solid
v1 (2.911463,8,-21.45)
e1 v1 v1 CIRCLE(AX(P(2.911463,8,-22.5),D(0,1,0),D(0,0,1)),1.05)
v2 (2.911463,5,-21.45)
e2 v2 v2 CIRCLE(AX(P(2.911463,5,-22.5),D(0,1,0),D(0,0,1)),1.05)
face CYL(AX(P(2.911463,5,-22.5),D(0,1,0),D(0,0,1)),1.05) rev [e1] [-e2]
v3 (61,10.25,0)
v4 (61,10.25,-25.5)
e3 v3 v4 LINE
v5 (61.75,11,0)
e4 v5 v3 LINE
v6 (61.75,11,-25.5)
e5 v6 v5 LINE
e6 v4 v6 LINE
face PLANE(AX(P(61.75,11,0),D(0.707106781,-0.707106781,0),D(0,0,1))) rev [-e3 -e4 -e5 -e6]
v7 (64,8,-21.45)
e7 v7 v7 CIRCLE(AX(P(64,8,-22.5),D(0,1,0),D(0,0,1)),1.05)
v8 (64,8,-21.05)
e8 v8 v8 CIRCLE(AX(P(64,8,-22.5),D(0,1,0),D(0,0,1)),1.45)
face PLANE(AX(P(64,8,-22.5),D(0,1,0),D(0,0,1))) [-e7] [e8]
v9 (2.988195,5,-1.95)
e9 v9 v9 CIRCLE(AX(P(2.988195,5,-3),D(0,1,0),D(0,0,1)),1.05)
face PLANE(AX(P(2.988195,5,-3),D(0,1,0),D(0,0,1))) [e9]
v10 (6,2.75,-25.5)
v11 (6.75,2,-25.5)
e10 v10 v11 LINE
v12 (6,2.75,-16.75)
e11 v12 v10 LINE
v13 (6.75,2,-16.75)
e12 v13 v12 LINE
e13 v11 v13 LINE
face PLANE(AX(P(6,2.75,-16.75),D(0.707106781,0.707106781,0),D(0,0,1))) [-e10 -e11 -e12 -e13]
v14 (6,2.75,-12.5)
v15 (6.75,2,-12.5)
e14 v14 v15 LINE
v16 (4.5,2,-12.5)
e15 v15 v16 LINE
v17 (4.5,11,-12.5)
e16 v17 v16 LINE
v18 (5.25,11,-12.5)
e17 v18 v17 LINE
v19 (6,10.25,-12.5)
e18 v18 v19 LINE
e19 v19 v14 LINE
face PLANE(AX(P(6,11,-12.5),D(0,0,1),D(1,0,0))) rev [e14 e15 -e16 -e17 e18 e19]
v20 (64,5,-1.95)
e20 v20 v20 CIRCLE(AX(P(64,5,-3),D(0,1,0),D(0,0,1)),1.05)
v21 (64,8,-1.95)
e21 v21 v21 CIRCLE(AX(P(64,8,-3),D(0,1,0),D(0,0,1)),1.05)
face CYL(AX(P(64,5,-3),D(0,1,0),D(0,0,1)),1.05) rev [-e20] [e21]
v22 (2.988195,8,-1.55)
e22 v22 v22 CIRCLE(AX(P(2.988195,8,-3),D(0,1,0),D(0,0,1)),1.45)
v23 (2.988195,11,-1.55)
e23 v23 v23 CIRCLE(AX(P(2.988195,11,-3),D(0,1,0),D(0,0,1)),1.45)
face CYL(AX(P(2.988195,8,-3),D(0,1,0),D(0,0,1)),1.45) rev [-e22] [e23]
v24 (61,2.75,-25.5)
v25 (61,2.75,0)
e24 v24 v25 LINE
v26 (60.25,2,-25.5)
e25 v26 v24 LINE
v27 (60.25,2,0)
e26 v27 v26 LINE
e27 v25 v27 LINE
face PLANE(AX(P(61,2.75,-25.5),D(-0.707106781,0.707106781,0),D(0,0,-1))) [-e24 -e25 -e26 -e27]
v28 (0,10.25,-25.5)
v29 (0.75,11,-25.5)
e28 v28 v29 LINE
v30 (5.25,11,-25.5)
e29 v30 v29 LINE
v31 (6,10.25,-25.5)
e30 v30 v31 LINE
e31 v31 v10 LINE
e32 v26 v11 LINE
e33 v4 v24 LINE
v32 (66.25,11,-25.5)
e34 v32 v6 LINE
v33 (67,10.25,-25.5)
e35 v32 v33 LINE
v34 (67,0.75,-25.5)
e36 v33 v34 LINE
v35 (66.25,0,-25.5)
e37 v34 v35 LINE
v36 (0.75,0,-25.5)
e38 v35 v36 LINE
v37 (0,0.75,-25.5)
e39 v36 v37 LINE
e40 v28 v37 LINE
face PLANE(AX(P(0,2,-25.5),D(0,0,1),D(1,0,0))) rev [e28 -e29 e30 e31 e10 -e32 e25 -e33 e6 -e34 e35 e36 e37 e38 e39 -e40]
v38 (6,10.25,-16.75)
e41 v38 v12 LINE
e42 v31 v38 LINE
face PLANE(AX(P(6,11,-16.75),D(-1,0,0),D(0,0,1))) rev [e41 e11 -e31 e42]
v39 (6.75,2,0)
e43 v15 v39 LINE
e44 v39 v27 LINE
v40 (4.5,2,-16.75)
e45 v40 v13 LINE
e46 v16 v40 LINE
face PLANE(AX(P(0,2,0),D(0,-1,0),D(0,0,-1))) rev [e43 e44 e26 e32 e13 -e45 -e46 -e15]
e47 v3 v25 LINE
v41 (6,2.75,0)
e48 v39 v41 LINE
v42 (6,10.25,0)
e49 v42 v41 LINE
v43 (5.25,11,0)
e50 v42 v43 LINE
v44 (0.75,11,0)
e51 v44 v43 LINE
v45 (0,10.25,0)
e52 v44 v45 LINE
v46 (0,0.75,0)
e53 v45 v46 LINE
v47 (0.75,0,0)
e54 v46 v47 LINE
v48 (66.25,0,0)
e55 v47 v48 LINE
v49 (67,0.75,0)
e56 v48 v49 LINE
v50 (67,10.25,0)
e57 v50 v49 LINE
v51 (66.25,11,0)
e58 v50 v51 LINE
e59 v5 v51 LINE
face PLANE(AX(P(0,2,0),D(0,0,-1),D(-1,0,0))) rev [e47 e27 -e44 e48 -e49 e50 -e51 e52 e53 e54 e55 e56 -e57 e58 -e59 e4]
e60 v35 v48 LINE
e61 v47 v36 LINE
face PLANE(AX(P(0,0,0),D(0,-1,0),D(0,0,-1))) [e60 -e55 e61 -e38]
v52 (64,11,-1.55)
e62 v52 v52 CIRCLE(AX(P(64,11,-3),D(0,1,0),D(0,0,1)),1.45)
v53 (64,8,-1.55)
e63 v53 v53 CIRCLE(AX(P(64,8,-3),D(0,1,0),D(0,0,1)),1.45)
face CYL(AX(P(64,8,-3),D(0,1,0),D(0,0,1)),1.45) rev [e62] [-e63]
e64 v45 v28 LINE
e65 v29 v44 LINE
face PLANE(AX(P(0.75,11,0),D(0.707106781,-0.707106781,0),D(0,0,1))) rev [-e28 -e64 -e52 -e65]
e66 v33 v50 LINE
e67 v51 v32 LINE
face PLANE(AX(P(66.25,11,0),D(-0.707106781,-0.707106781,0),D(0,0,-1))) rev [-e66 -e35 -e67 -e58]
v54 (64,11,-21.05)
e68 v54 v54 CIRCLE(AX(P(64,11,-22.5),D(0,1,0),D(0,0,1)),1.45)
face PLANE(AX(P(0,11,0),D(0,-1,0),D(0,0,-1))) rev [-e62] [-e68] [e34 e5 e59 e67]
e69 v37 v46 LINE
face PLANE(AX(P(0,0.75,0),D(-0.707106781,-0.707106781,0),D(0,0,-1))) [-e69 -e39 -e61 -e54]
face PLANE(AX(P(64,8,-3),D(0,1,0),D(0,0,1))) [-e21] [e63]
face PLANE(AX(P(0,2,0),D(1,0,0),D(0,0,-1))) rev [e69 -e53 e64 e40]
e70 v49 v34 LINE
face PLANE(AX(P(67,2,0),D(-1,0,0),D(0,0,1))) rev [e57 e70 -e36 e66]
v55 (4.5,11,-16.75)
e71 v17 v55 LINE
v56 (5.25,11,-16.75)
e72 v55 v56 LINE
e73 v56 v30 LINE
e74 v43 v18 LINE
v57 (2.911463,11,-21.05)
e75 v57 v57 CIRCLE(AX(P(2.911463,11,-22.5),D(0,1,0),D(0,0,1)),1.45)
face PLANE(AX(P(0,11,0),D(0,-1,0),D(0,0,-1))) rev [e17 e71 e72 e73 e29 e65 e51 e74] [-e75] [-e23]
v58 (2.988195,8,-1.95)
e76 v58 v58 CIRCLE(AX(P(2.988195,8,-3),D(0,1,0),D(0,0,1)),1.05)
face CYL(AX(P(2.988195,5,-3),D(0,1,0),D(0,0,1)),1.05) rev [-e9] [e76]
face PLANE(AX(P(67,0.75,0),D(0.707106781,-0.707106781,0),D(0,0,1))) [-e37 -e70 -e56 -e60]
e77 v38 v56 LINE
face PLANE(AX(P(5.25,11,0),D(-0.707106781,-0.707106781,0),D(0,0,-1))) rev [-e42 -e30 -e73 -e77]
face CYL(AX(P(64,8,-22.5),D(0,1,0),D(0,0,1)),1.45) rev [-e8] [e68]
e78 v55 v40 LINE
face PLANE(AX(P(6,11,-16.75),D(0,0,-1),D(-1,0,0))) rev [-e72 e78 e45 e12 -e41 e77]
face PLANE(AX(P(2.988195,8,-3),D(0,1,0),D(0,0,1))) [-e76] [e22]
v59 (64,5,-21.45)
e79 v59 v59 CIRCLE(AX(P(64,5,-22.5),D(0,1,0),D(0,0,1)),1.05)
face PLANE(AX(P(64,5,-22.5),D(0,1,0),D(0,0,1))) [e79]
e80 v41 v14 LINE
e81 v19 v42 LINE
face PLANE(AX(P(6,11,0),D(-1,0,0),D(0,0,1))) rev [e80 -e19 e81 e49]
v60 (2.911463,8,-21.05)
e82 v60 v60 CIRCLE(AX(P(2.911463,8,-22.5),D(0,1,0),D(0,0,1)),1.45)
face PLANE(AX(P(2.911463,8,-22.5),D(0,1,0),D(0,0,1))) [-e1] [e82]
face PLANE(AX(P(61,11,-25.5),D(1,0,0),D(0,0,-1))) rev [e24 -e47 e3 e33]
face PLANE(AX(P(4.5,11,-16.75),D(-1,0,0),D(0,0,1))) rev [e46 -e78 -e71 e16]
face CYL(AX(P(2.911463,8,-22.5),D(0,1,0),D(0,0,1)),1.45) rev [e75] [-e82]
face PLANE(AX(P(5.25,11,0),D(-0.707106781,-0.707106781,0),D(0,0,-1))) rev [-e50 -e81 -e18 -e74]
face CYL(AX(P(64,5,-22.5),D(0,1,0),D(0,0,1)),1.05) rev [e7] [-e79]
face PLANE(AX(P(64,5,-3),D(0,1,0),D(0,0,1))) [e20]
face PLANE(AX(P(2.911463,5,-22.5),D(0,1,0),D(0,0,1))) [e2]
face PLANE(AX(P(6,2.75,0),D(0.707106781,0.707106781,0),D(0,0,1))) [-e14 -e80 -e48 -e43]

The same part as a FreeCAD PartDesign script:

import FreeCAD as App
import Part
import Sketcher
from FreeCAD import Vector
Q = App.Units.Quantity


def edges_at(feature, points):
    """Names of the edges that pass closest to the given points."""
    edges = feature.Shape.Edges
    near = lambda p: min(range(len(edges)), key=lambda i: edges[i].distToShape(Part.Vertex(*p))[0])
    return sorted({f"Edge{near(p) + 1}" for p in points})


def add_polygon(sketch, points):
    """Adds a closed chain of lines whose ends are joined by coincident constraints."""
    first, n = sketch.GeometryCount, len(points)
    for a, b in zip(points, points[1:] + points[:1]):
        sketch.addGeometry(Part.LineSegment(App.Vector(*a, 0), App.Vector(*b, 0)), False)
    for i in range(n):
        sketch.addConstraint(Sketcher.Constraint("Coincident", first + i, 2, first + (i + 1) % n, 1))

doc = App.newDocument("Part")
body = doc.addObject("PartDesign::Body", "Body")

# Sketch on XZ plane
sketch1 = doc.addObject("Sketcher::SketchObject", "Sketch")
body.addObject(sketch1)
sketch1.AttachmentSupport = (doc.XZ_Plane, [""])
sketch1.MapMode = "FlatFace"
add_polygon(sketch1, [(0, -25.5), (0, 0), (67, 0), (67, -25.5)])  # lines 0-3
sketch1.addConstraint([
    Sketcher.Constraint("Vertical", 0),
    Sketcher.Constraint("Horizontal", 1),
    Sketcher.Constraint("Vertical", 2),
    Sketcher.Constraint("Horizontal", 3),
    Sketcher.Constraint("Coincident", 0, 2, -1, 1),
    Sketcher.Constraint("DistanceX", 1, 1, 1, 2, Q("67 mm")),
    Sketcher.Constraint("DistanceY", 0, 1, 0, 2, Q("25.5 mm")),
])
pad1 = doc.addObject("PartDesign::Pad", "Pad")
body.addObject(pad1)
pad1.Profile = sketch1
pad1.Length = 2
pad1.Reversed = True

# Sketch on XZ plane
sketch2 = doc.addObject("Sketcher::SketchObject", "Sketch001")
body.addObject(sketch2)
sketch2.AttachmentSupport = (doc.XZ_Plane, [""])
sketch2.MapMode = "FlatFace"
sketch2.AttachmentOffset = App.Placement(Vector(0, 0, -2), App.Rotation())
add_polygon(sketch2, [(61, -25.5), (61, 0), (67, 0), (67, -25.5)])  # lines 0-3
sketch2.addConstraint([
    Sketcher.Constraint("Vertical", 0),
    Sketcher.Constraint("Horizontal", 1),
    Sketcher.Constraint("Vertical", 2),
    Sketcher.Constraint("Horizontal", 3),
    Sketcher.Constraint("PointOnObject", 0, 2, -1),
    Sketcher.Constraint("DistanceX", 1, 1, 1, 2, Q("6 mm")),
    Sketcher.Constraint("DistanceY", 0, 1, 0, 2, Q("25.5 mm")),
    Sketcher.Constraint("DistanceX", -1, 1, 0, 2, Q("61 mm")),
])
pad2 = doc.addObject("PartDesign::Pad", "Pad001")
body.addObject(pad2)
pad2.Profile = sketch2
pad2.Length = 9
pad2.Reversed = True

# Sketch on XZ plane
sketch3 = doc.addObject("Sketcher::SketchObject", "Sketch002")
body.addObject(sketch3)
sketch3.AttachmentSupport = (doc.XZ_Plane, [""])
sketch3.MapMode = "FlatFace"
sketch3.AttachmentOffset = App.Placement(Vector(0, 0, -2), App.Rotation())
add_polygon(sketch3, [(0, 0), (6, 0), (6, -12.5), (4.5, -12.5), (4.5, -16.75), (6, -16.75), (6, -25.5), (0, -25.5)])  # lines 0-7
sketch3.addConstraint([
    Sketcher.Constraint("Horizontal", 0),
    Sketcher.Constraint("Vertical", 1),
    Sketcher.Constraint("Horizontal", 2),
    Sketcher.Constraint("Vertical", 3),
    Sketcher.Constraint("Horizontal", 4),
    Sketcher.Constraint("Vertical", 5),
    Sketcher.Constraint("Horizontal", 6),
    Sketcher.Constraint("Vertical", 7),
    Sketcher.Constraint("Coincident", 7, 2, -1, 1),
    Sketcher.Constraint("Vertical", 1, 2, 4, 2),
    Sketcher.Constraint("DistanceX", 0, 1, 0, 2, Q("6 mm")),
    Sketcher.Constraint("DistanceX", 2, 2, 2, 1, Q("1.5 mm")),
    Sketcher.Constraint("DistanceY", 1, 2, 1, 1, Q("12.5 mm")),
    Sketcher.Constraint("DistanceY", 7, 1, 7, 2, Q("25.5 mm")),
    Sketcher.Constraint("DistanceY", 3, 2, 3, 1, Q("4.25 mm")),
])
pad3 = doc.addObject("PartDesign::Pad", "Pad002")
body.addObject(pad3)
pad3.Profile = sketch3
pad3.Length = 9
pad3.Reversed = True

# Sketch on XZ plane
sketch4 = doc.addObject("Sketcher::SketchObject", "Sketch003")
body.addObject(sketch4)
sketch4.AttachmentSupport = (doc.XZ_Plane, [""])
sketch4.MapMode = "FlatFace"
sketch4.AttachmentOffset = App.Placement(Vector(0, 0, -11), App.Rotation())
sketch4.addGeometry([
    Part.Circle(Vector(2.911463, -22.5, 0), Vector(0, 0, 1), 1.45),
    Part.Circle(Vector(2.988195, -3, 0), Vector(0, 0, 1), 1.45),
    Part.Circle(Vector(64, -22.5, 0), Vector(0, 0, 1), 1.45),
    Part.Circle(Vector(64, -3, 0), Vector(0, 0, 1), 1.45),
], False)
sketch4.addConstraint([
    Sketcher.Constraint("Equal", 0, 1),
    Sketcher.Constraint("Equal", 1, 2),
    Sketcher.Constraint("Equal", 2, 3),
    Sketcher.Constraint("Horizontal", 0, 3, 2, 3),
    Sketcher.Constraint("Horizontal", 1, 3, 3, 3),
    Sketcher.Constraint("Vertical", 2, 3, 3, 3),
    Sketcher.Constraint("Diameter", 0, Q("2.9 mm")),
    Sketcher.Constraint("DistanceY", 1, 3, -1, 1, Q("3 mm")),
    Sketcher.Constraint("DistanceX", -1, 1, 2, 3, Q("64 mm")),
    Sketcher.Constraint("DistanceY", 0, 3, -1, 1, Q("22.5 mm")),
    Sketcher.Constraint("DistanceX", 0, 3, 1, 3, Q("0.076732 mm")),
    Sketcher.Constraint("DistanceX", -1, 1, 0, 3, Q("2.911463 mm")),
])
pocket1 = doc.addObject("PartDesign::Pocket", "Pocket")
body.addObject(pocket1)
pocket1.Profile = sketch4
pocket1.Length = 3
pocket1.Reversed = True
doc.recompute()

chamfer = doc.addObject("PartDesign::Chamfer", "Chamfer")
body.addObject(chamfer)
chamfer.Base = (pocket1, edges_at(pocket1, [
    (61, 2, -12.75),
    (67, 11, -12.75),
    (61, 11, -12.75),
    (6, 2, -6.25),
    (6, 2, -21.125),
    (0, 11, -12.75),
    (6, 11, -6.25),
    (6, 11, -21.125),
    (67, 0, -12.75),
    (0, 0, -12.75),
]))
chamfer.Size = 0.75

# Sketch on XZ plane
sketch5 = doc.addObject("Sketcher::SketchObject", "Sketch004")
body.addObject(sketch5)
sketch5.AttachmentSupport = (doc.XZ_Plane, [""])
sketch5.MapMode = "FlatFace"
sketch5.AttachmentOffset = App.Placement(Vector(0, 0, -8), App.Rotation())
sketch5.addGeometry([
    Part.Circle(Vector(2.911463, -22.5, 0), Vector(0, 0, 1), 1.05),
    Part.Circle(Vector(2.988195, -3, 0), Vector(0, 0, 1), 1.05),
    Part.Circle(Vector(64, -3, 0), Vector(0, 0, 1), 1.05),
    Part.Circle(Vector(64, -22.5, 0), Vector(0, 0, 1), 1.05),
], False)
sketch5.addConstraint([
    Sketcher.Constraint("Equal", 0, 1),
    Sketcher.Constraint("Equal", 1, 2),
    Sketcher.Constraint("Equal", 2, 3),
    Sketcher.Constraint("Horizontal", 1, 3, 2, 3),
    Sketcher.Constraint("Horizontal", 0, 3, 3, 3),
    Sketcher.Constraint("Vertical", 2, 3, 3, 3),
    Sketcher.Constraint("Diameter", 0, Q("2.1 mm")),
    Sketcher.Constraint("DistanceY", 1, 3, -1, 1, Q("3 mm")),
    Sketcher.Constraint("DistanceX", -1, 1, 2, 3, Q("64 mm")),
    Sketcher.Constraint("DistanceY", 0, 3, -1, 1, Q("22.5 mm")),
    Sketcher.Constraint("DistanceX", 0, 3, 1, 3, Q("0.076732 mm")),
    Sketcher.Constraint("DistanceX", -1, 1, 0, 3, Q("2.911463 mm")),
])
pocket2 = doc.addObject("PartDesign::Pocket", "Pocket001")
body.addObject(pocket2)
pocket2.Profile = sketch5
pocket2.Length = 3
pocket2.Reversed = True

doc.recompute()
